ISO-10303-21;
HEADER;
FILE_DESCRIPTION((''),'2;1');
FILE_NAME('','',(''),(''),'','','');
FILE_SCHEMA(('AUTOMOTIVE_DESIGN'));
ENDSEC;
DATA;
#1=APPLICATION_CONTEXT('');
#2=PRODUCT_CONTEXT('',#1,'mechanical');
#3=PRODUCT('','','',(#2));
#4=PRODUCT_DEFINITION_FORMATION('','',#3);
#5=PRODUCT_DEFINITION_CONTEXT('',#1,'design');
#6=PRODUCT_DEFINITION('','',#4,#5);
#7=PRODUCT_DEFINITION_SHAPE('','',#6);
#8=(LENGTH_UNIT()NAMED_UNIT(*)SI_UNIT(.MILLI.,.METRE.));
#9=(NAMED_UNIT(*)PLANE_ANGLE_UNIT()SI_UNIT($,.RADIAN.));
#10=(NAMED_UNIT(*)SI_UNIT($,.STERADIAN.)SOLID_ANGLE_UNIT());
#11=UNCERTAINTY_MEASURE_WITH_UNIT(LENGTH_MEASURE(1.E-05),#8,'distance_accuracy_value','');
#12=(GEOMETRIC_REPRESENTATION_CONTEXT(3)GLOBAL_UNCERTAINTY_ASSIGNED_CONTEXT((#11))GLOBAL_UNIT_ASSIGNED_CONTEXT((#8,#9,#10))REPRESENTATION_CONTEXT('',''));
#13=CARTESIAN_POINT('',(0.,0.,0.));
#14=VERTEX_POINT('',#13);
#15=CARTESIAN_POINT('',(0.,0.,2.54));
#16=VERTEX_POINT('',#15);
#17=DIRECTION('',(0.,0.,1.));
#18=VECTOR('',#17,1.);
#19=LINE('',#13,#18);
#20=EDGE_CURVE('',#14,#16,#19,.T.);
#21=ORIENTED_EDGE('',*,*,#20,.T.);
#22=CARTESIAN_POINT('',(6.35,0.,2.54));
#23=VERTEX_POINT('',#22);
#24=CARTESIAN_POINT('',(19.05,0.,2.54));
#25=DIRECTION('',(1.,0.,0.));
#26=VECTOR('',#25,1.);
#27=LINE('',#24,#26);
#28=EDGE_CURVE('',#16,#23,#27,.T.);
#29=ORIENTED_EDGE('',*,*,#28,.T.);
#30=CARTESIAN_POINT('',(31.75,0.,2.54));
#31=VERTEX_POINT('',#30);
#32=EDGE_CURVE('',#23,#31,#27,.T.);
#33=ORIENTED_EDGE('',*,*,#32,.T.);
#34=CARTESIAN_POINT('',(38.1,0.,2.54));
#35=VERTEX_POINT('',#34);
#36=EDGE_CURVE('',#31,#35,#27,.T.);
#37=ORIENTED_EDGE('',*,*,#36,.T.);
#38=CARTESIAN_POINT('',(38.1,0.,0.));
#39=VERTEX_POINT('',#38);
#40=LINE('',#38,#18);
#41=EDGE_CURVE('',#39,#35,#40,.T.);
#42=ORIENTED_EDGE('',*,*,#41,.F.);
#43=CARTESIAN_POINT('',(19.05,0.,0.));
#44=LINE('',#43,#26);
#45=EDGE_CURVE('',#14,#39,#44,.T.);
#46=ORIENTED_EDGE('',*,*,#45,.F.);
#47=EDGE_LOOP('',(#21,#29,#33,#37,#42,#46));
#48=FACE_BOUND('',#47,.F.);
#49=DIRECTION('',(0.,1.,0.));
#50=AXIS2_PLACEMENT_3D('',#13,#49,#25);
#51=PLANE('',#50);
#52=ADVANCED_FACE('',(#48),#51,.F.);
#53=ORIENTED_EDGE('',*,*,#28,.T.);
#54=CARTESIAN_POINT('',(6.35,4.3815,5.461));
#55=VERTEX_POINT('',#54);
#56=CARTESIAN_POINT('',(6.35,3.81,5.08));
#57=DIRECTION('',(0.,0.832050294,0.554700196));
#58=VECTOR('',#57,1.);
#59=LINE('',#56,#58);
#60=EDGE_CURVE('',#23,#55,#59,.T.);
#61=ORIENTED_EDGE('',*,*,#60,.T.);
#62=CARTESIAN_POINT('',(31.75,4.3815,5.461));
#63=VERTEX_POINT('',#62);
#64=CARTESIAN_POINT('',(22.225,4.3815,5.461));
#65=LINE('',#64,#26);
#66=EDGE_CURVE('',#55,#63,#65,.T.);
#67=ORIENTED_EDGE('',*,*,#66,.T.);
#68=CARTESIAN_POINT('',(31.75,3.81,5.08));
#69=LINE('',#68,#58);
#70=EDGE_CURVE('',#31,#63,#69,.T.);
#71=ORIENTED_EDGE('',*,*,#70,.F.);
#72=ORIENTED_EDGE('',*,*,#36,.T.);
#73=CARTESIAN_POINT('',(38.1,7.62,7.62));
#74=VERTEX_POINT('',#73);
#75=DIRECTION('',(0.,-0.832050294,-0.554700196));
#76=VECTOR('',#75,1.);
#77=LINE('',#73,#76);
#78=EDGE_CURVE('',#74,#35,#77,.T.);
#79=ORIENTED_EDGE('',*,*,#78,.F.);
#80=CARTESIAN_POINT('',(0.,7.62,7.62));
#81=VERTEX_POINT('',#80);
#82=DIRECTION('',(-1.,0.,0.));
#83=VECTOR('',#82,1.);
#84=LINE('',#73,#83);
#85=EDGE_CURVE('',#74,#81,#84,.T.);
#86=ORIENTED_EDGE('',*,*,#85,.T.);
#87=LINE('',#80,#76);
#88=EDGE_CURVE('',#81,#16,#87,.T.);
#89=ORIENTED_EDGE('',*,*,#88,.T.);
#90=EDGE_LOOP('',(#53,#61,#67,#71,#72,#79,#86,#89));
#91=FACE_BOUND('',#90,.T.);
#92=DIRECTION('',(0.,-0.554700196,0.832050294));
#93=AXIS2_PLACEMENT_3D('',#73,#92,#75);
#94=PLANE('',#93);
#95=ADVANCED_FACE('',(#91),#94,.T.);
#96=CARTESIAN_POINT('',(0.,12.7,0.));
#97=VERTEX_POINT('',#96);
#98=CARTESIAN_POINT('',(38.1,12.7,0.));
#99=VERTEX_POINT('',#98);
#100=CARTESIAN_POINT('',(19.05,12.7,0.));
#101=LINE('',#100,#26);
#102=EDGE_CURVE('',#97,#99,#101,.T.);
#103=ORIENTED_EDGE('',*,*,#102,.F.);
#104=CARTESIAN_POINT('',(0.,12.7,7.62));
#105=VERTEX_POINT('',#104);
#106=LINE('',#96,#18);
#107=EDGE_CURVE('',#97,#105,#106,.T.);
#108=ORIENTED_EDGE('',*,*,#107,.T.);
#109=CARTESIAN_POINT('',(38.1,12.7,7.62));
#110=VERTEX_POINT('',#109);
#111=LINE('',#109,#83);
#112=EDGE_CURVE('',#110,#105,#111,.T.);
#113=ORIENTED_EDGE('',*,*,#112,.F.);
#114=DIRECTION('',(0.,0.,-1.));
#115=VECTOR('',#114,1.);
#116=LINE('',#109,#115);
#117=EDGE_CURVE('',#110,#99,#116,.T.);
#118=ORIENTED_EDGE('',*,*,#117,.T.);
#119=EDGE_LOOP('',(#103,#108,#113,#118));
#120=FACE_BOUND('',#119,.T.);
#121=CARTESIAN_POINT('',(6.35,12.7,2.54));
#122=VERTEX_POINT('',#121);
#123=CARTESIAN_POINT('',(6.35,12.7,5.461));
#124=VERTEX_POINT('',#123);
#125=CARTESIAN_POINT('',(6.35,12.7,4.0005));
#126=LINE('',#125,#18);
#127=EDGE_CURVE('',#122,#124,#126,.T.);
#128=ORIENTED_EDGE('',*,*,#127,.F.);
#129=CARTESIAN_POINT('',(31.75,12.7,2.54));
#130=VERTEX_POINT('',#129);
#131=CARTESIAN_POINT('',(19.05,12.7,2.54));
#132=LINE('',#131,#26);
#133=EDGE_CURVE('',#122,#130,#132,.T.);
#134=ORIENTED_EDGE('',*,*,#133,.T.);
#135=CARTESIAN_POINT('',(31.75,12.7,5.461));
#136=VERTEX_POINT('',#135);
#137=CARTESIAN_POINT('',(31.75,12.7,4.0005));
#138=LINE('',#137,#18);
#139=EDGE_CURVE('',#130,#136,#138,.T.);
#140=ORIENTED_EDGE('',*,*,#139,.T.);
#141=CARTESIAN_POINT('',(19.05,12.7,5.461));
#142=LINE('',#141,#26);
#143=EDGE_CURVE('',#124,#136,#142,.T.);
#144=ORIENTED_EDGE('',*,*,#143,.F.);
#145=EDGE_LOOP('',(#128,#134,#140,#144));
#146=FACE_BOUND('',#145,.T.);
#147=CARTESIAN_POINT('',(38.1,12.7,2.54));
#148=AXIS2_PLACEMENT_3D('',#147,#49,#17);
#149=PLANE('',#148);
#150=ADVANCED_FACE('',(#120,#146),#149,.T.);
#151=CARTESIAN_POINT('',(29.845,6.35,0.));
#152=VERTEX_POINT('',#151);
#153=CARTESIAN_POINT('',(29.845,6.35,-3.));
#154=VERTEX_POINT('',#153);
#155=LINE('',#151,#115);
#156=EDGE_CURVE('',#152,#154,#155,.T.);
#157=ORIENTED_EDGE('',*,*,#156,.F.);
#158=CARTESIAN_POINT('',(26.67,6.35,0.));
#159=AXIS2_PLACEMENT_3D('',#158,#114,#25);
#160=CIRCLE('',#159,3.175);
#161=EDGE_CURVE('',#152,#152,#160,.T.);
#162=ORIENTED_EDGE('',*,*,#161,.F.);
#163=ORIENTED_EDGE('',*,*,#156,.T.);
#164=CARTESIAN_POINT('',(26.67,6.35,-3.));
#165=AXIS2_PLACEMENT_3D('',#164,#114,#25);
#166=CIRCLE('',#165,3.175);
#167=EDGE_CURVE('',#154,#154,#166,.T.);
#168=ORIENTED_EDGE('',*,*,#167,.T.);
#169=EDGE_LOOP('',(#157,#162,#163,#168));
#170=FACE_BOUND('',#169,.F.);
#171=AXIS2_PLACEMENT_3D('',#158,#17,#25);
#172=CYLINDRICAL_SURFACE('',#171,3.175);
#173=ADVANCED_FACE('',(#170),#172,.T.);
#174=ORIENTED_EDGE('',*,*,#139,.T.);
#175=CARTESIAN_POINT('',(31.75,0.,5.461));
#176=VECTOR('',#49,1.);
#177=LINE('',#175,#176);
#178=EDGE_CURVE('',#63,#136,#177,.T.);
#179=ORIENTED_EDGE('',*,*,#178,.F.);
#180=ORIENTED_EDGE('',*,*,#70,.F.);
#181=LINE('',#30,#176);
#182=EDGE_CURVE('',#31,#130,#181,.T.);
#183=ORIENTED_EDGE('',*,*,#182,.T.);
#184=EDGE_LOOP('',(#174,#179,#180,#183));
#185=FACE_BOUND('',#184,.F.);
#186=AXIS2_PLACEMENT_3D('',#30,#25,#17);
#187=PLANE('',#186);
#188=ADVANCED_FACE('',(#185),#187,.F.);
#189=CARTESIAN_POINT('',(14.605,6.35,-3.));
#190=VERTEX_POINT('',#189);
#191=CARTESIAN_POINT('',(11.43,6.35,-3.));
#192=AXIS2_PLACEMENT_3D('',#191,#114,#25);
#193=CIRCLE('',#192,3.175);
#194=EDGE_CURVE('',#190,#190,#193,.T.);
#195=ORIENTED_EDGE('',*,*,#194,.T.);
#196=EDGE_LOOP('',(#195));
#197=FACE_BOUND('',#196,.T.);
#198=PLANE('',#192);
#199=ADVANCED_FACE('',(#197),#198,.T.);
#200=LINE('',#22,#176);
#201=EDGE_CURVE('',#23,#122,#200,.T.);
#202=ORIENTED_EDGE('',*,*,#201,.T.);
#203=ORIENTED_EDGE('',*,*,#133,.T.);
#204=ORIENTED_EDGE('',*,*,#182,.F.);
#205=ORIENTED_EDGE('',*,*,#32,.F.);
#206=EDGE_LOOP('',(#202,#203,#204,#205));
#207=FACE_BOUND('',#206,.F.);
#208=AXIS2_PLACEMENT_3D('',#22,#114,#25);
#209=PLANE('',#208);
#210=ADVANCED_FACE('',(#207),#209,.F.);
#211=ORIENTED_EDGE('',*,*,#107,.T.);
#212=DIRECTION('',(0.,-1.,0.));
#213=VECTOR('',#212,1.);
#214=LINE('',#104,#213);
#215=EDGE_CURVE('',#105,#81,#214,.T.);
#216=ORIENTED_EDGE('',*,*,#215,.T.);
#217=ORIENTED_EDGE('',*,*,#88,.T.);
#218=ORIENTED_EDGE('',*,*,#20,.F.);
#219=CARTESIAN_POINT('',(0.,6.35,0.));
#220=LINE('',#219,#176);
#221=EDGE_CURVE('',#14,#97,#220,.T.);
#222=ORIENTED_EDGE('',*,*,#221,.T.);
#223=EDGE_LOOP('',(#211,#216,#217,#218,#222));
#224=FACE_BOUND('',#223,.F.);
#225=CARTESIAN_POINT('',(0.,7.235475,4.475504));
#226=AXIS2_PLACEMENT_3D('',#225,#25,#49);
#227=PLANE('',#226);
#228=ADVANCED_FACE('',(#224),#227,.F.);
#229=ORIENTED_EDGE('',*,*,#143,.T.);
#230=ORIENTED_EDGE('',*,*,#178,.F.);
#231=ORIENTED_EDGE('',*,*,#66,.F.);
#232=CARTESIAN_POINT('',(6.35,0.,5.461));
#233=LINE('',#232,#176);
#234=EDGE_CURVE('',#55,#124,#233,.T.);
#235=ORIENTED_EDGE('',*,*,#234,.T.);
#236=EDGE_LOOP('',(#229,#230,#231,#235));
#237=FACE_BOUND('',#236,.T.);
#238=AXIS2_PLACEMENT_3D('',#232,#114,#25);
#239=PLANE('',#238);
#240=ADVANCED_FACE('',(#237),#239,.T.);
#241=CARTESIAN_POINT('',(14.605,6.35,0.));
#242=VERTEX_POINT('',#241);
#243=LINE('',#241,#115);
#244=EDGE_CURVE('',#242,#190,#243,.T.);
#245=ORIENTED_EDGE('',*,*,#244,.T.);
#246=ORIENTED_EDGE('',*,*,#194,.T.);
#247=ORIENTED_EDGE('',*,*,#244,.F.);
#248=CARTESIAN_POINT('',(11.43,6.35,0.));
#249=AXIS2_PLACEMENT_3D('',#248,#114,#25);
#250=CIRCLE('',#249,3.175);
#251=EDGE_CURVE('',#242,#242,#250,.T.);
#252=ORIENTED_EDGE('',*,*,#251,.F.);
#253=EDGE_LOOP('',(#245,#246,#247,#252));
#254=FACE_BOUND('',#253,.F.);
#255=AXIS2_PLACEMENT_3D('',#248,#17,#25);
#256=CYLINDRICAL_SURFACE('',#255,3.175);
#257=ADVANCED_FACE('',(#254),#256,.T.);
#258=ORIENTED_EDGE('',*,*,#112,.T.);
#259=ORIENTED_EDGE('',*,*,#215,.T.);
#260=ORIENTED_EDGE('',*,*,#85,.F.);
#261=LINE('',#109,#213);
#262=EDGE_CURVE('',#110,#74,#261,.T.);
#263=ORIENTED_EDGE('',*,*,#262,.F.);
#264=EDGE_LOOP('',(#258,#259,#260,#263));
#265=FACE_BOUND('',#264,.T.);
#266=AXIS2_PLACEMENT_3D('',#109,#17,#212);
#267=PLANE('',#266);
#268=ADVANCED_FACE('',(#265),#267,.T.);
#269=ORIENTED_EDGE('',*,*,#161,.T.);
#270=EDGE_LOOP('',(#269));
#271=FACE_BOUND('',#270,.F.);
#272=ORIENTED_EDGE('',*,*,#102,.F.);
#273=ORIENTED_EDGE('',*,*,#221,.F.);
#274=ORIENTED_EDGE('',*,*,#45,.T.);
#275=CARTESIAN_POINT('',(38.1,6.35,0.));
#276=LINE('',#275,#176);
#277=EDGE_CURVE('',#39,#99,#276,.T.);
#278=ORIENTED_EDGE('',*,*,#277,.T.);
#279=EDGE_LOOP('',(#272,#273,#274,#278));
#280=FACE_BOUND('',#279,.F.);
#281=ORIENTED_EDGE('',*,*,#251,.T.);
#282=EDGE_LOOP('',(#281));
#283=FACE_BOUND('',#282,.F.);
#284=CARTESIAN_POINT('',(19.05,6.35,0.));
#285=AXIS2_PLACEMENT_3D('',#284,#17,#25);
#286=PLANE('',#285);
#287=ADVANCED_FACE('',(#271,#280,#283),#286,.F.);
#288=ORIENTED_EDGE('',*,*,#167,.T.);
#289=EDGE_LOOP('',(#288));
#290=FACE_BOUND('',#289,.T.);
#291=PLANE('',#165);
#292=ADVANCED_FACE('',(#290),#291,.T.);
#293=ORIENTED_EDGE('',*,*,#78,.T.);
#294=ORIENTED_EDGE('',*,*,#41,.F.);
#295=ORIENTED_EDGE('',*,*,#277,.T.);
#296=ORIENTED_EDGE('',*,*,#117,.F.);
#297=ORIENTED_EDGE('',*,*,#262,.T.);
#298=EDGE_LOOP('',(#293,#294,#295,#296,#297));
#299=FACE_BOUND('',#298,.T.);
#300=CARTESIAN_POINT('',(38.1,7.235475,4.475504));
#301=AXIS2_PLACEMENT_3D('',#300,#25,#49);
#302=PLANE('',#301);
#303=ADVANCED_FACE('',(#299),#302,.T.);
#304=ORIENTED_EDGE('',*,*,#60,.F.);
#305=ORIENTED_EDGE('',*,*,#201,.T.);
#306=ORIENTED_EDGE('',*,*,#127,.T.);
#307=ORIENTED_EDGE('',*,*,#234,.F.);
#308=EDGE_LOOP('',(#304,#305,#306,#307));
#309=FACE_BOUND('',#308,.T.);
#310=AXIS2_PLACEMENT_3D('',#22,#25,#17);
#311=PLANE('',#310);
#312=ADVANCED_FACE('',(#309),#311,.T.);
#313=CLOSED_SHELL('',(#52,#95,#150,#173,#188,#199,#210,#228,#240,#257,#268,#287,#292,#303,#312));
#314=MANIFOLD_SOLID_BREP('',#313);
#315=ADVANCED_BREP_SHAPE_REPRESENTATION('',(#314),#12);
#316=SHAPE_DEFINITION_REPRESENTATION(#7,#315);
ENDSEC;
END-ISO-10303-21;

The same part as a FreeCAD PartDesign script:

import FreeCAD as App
import Part
import Sketcher
from FreeCAD import Vector
Q = App.Units.Quantity

doc = App.newDocument("Part")
params = doc.addObject("Spreadsheet::Sheet", "Params")
for row, (alias, value) in enumerate([
    ("sketch1_width", "1.5 in"),
    ("sketch1_height", "0.5 in"),
    ("pad1_length", "0.1 in"),
    ("sketch2_width", "0.5 in"),
    ("sketch2_width2", "0.2 in"),
    ("pad2_length", "1.5 in"),
    ("sketch3_width", "1 in"),
    ("sketch3_height", "0.115 in"),
    ("pocket1_length", "0.5 in"),
    ("sketch4_diameter", "0.25 in"),
    ("pad3_length", "3 mm"),
], start=1):
    params.set(f"A{row}", alias)
    params.set(f"B{row}", "=" + value)
    params.setAlias(f"B{row}", alias)

body = doc.addObject("PartDesign::Body", "Body")

# Sketch on XY plane
sketch1 = body.newObject("Sketcher::SketchObject", "Sketch")
sketch1.AttachmentSupport = (doc.getObject("XY_Plane"), [""])
sketch1.MapMode = "FlatFace"
sketch1.addGeometry(Part.LineSegment(Vector(0, 13, 0), Vector(0, 0, 0)), False)
sketch1.addGeometry(Part.LineSegment(Vector(0, 0, 0), Vector(38, 0, 0)), False)
sketch1.addGeometry(Part.LineSegment(Vector(38, 0, 0), Vector(38, 13, 0)), False)
sketch1.addGeometry(Part.LineSegment(Vector(38, 13, 0), Vector(0, 13, 0)), False)
sketch1.addConstraint(Sketcher.Constraint("Coincident", 0, 2, 1, 1))
sketch1.addConstraint(Sketcher.Constraint("Coincident", 1, 2, 2, 1))
sketch1.addConstraint(Sketcher.Constraint("Coincident", 2, 2, 3, 1))
sketch1.addConstraint(Sketcher.Constraint("Coincident", 3, 2, 0, 1))
sketch1.addConstraint(Sketcher.Constraint("Vertical", 0))
sketch1.addConstraint(Sketcher.Constraint("Horizontal", 1))
sketch1.addConstraint(Sketcher.Constraint("Vertical", 2))
sketch1.addConstraint(Sketcher.Constraint("Horizontal", 3))
sketch1.addConstraint(Sketcher.Constraint("Coincident", 0, 2, -1, 1))
sketch1.addConstraint(Sketcher.Constraint("DistanceX", 1, 1, 1, 2, Q("1.5 in")))
sketch1.addConstraint(Sketcher.Constraint("DistanceY", 0, 2, 0, 1, Q("0.5 in")))
sketch1.setExpression("Constraints[9]", "Params.sketch1_width")
sketch1.setExpression("Constraints[10]", "Params.sketch1_height")
pad1 = body.newObject("PartDesign::Pad", "Pad")
pad1.Profile = sketch1
pad1.setExpression("Length", "Params.pad1_length")

# Sketch on YZ plane
sketch2 = body.newObject("Sketcher::SketchObject", "Sketch001")
sketch2.AttachmentSupport = (doc.getObject("YZ_Plane"), [""])
sketch2.MapMode = "FlatFace"
sketch2.AttachmentOffset = App.Placement(Vector(0, 0, 1.5 * 25.4), App.Rotation())
sketch2.addGeometry(Part.LineSegment(Vector(0, 3, 0), Vector(13, 3, 0)), False)
sketch2.addGeometry(Part.LineSegment(Vector(13, 3, 0), Vector(13, 8, 0)), False)
sketch2.addGeometry(Part.LineSegment(Vector(13, 8, 0), Vector(8, 8, 0)), False)
sketch2.addGeometry(Part.LineSegment(Vector(8, 8, 0), Vector(0, 3, 0)), False)
sketch2.addConstraint(Sketcher.Constraint("Coincident", 0, 2, 1, 1))
sketch2.addConstraint(Sketcher.Constraint("Coincident", 1, 2, 2, 1))
sketch2.addConstraint(Sketcher.Constraint("Coincident", 2, 2, 3, 1))
sketch2.addConstraint(Sketcher.Constraint("Coincident", 3, 2, 0, 1))
sketch2.addConstraint(Sketcher.Constraint("Horizontal", 0))
sketch2.addConstraint(Sketcher.Constraint("Vertical", 1))
sketch2.addConstraint(Sketcher.Constraint("Horizontal", 2))
sketch2.addConstraint(Sketcher.Constraint("PointOnObject", 3, 2, -2))
sketch2.addConstraint(Sketcher.Constraint("Equal", 2, 1))
sketch2.addConstraint(Sketcher.Constraint("DistanceX", 0, 1, 0, 2, Q("0.5 in")))
sketch2.addConstraint(Sketcher.Constraint("DistanceX", 2, 2, 2, 1, Q("0.2 in")))
sketch2.addConstraint(Sketcher.Constraint("DistanceY", -1, 1, 0, 2, Q("0.1 in")))
sketch2.setExpression("Constraints[9]", "Params.sketch2_width")
sketch2.setExpression("Constraints[10]", "Params.sketch2_width2")
pad2 = body.newObject("PartDesign::Pad", "Pad001")
pad2.Profile = sketch2
pad2.setExpression("Length", "Params.pad2_length")
pad2.Reversed = True

# Sketch on XZ plane
sketch3 = body.newObject("Sketcher::SketchObject", "Sketch002")
sketch3.AttachmentSupport = (doc.getObject("XZ_Plane"), [""])
sketch3.MapMode = "FlatFace"
sketch3.addGeometry(Part.LineSegment(Vector(6.3, 5.5, 0), Vector(6.3, 2.5, 0)), False)
sketch3.addGeometry(Part.LineSegment(Vector(6.3, 2.5, 0), Vector(31.8, 2.5, 0)), False)
sketch3.addGeometry(Part.LineSegment(Vector(31.8, 2.5, 0), Vector(31.8, 5.5, 0)), False)
sketch3.addGeometry(Part.LineSegment(Vector(31.8, 5.5, 0), Vector(6.3, 5.5, 0)), False)
sketch3.addConstraint(Sketcher.Constraint("Coincident", 0, 2, 1, 1))
sketch3.addConstraint(Sketcher.Constraint("Coincident", 1, 2, 2, 1))
sketch3.addConstraint(Sketcher.Constraint("Coincident", 2, 2, 3, 1))
sketch3.addConstraint(Sketcher.Constraint("Coincident", 3, 2, 0, 1))
sketch3.addConstraint(Sketcher.Constraint("Vertical", 0))
sketch3.addConstraint(Sketcher.Constraint("Horizontal", 1))
sketch3.addConstraint(Sketcher.Constraint("Vertical", 2))
sketch3.addConstraint(Sketcher.Constraint("Horizontal", 3))
sketch3.addConstraint(Sketcher.Constraint("DistanceX", 1, 1, 1, 2, Q("1 in")))
sketch3.addConstraint(Sketcher.Constraint("DistanceY", -1, 1, 0, 2, Q("0.1 in")))
sketch3.addConstraint(Sketcher.Constraint("DistanceY", 0, 2, 0, 1, Q("0.115 in")))
sketch3.addConstraint(Sketcher.Constraint("DistanceX", -1, 1, 0, 2, Q("0.25 in")))
sketch3.setExpression("Constraints[8]", "Params.sketch3_width")
sketch3.setExpression("Constraints[10]", "Params.sketch3_height")
pocket1 = body.newObject("PartDesign::Pocket", "Pocket")
pocket1.Profile = sketch3
pocket1.setExpression("Length", "Params.pocket1_length")

# Sketch on XY plane
sketch4 = body.newObject("Sketcher::SketchObject", "Sketch003")
sketch4.AttachmentSupport = (doc.getObject("XY_Plane"), [""])
sketch4.MapMode = "FlatFace"
sketch4.addGeometry(Part.Circle(Vector(11.4, 6.3, 0), Vector(0, 0, 1), 3.2), False)
sketch4.addGeometry(Part.Circle(Vector(26.7, 6.3, 0), Vector(0, 0, 1), 3.2), False)
sketch4.addConstraint(Sketcher.Constraint("Equal", 0, 1))
sketch4.addConstraint(Sketcher.Constraint("Horizontal", 0, 3, 1, 3))
sketch4.addConstraint(Sketcher.Constraint("Diameter", 0, Q("0.25 in")))
sketch4.addConstraint(Sketcher.Constraint("DistanceX", 0, 3, 1, 3, Q("0.6 in")))
sketch4.addConstraint(Sketcher.Constraint("DistanceX", -1, 1, 0, 3, Q("0.45 in")))
sketch4.addConstraint(Sketcher.Constraint("DistanceY", -1, 1, 0, 3, Q("0.25 in")))
sketch4.setExpression("Constraints[2]", "Params.sketch4_diameter")
pad3 = body.newObject("PartDesign::Pad", "Pad002")
pad3.Profile = sketch4
pad3.setExpression("Length", "Params.pad3_length")
pad3.Reversed = True

doc.recompute()
